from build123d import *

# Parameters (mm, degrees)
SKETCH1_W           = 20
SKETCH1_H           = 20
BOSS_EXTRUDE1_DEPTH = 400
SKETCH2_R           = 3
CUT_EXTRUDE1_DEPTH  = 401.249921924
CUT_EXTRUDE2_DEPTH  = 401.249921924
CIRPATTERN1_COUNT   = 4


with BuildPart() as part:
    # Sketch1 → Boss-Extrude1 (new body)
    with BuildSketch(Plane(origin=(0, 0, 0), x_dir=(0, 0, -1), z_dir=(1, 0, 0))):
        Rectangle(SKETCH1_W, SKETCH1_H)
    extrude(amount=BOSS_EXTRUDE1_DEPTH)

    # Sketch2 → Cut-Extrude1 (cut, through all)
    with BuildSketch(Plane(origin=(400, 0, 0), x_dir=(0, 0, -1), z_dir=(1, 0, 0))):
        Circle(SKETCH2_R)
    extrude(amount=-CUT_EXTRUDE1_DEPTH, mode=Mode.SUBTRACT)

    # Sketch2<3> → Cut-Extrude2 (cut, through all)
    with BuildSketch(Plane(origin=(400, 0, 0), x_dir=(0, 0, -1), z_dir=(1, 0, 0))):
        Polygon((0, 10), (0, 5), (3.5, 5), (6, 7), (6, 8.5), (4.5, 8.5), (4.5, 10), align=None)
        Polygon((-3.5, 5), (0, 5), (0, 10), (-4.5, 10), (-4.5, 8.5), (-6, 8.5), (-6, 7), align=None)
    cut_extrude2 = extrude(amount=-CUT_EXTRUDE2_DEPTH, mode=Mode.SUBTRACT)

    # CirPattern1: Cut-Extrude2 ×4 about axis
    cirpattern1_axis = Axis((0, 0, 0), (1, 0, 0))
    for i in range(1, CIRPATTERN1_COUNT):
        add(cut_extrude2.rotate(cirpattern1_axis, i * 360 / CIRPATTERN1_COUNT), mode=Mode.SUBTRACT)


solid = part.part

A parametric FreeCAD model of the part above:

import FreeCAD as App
import Part
import Sketcher


def add_polygon(sketch, points):
    """Adds a closed chain of lines whose ends are joined by coincident constraints."""
    first, n = sketch.GeometryCount, len(points)
    for a, b in zip(points, points[1:] + points[:1]):
        sketch.addGeometry(Part.LineSegment(App.Vector(*a, 0), App.Vector(*b, 0)), False)
    for i in range(n):
        sketch.addConstraint(Sketcher.Constraint("Coincident", first + i, 2, first + (i + 1) % n, 1))

doc = App.newDocument("Part")
body = doc.addObject("PartDesign::Body", "Body")

sketch1 = body.newObject("Sketcher::SketchObject", "Sketch")
sketch1.AttachmentSupport = (doc.getObject("YZ_Plane"), [""])
sketch1.MapMode = "FlatFace"
add_polygon(sketch1, [(10, 10), (-10, 10), (-10, -10), (10, -10)])
sketch1.addConstraint([
    Sketcher.Constraint("Horizontal", 0),
    Sketcher.Constraint("Vertical", 1),
    Sketcher.Constraint("Horizontal", 2),
    Sketcher.Constraint("Vertical", 3),
    Sketcher.Constraint("Symmetric", 0, 2, 2, 2, -1, 1),
    Sketcher.Constraint("Equal", 2, 1),
    Sketcher.Constraint("DistanceX", 0, 2, 0, 1, 20.0),
])
pad1 = body.newObject("PartDesign::Pad", "Pad")
pad1.Profile = sketch1
pad1.Length = 400

sketch2 = body.newObject("Sketcher::SketchObject", "Sketch001")
sketch2.AttachmentSupport = (doc.getObject("YZ_Plane"), [""])
sketch2.MapMode = "FlatFace"
sketch2.AttachmentOffset = App.Placement(App.Vector(0, 0, 400), App.Rotation())
sketch2.addGeometry(Part.Circle(App.Vector(0, 0, 0), App.Vector(0, 0, 1), 3), False)
sketch2.addConstraint([
    Sketcher.Constraint("Coincident", 0, 3, -1, 1),
    Sketcher.Constraint("Diameter", 0, 6.0),
])
pocket1 = body.newObject("PartDesign::Pocket", "Pocket")
pocket1.Profile = sketch2
pocket1.Type = "ThroughAll"

sketch3 = body.newObject("Sketcher::SketchObject", "Sketch002")
sketch3.AttachmentSupport = (doc.getObject("YZ_Plane"), [""])
sketch3.MapMode = "FlatFace"
sketch3.AttachmentOffset = App.Placement(App.Vector(0, 0, 400), App.Rotation())
add_polygon(sketch3, [(5, -3.5), (7, -6), (8.5, -6), (8.5, -4.5), (10, -4.5), (10, 4.5), (8.5, 4.5), (8.5, 6), (7, 6), (5, 3.5)])
sketch3.addConstraint([
    Sketcher.Constraint("Horizontal", 1),
    Sketcher.Constraint("Vertical", 2),
    Sketcher.Constraint("Horizontal", 3),
    Sketcher.Constraint("Vertical", 4),
    Sketcher.Constraint("Horizontal", 5),
    Sketcher.Constraint("Vertical", 6),
    Sketcher.Constraint("Horizontal", 7),
    Sketcher.Constraint("Vertical", 9),
    Sketcher.Constraint("Symmetric", 2, 2, 5, 2, -1),
    Sketcher.Constraint("Symmetric", 0, 2, 7, 2, -1),
    Sketcher.Constraint("Equal", 1, 3),
    Sketcher.Constraint("Equal", 7, 2),
    Sketcher.Constraint("Equal", 0, 8),
    Sketcher.Constraint("DistanceY", 4, 1, 4, 2, 9.0),
    Sketcher.Constraint("DistanceY", 9, 2, 9, 1, 7.0),
    Sketcher.Constraint("DistanceX", 1, 1, 1, 2, 1.5),
    Sketcher.Constraint("DistanceX", -1, 1, 0, 2, 7.0),
    Sketcher.Constraint("DistanceX", -1, 1, 8, 2, 5.0),
])
pocket2 = body.newObject("PartDesign::Pocket", "Pocket001")
pocket2.Profile = sketch3
pocket2.Type = "ThroughAll"
doc.recompute()

polarpattern = body.newObject("PartDesign::PolarPattern", "PolarPattern")
polarpattern.Originals = [pocket2]
polarpattern.Axis = (doc.getObject("X_Axis"), [""])
polarpattern.Angle = 360
polarpattern.Occurrences = 4
body.Tip = polarpattern

doc.recompute()
